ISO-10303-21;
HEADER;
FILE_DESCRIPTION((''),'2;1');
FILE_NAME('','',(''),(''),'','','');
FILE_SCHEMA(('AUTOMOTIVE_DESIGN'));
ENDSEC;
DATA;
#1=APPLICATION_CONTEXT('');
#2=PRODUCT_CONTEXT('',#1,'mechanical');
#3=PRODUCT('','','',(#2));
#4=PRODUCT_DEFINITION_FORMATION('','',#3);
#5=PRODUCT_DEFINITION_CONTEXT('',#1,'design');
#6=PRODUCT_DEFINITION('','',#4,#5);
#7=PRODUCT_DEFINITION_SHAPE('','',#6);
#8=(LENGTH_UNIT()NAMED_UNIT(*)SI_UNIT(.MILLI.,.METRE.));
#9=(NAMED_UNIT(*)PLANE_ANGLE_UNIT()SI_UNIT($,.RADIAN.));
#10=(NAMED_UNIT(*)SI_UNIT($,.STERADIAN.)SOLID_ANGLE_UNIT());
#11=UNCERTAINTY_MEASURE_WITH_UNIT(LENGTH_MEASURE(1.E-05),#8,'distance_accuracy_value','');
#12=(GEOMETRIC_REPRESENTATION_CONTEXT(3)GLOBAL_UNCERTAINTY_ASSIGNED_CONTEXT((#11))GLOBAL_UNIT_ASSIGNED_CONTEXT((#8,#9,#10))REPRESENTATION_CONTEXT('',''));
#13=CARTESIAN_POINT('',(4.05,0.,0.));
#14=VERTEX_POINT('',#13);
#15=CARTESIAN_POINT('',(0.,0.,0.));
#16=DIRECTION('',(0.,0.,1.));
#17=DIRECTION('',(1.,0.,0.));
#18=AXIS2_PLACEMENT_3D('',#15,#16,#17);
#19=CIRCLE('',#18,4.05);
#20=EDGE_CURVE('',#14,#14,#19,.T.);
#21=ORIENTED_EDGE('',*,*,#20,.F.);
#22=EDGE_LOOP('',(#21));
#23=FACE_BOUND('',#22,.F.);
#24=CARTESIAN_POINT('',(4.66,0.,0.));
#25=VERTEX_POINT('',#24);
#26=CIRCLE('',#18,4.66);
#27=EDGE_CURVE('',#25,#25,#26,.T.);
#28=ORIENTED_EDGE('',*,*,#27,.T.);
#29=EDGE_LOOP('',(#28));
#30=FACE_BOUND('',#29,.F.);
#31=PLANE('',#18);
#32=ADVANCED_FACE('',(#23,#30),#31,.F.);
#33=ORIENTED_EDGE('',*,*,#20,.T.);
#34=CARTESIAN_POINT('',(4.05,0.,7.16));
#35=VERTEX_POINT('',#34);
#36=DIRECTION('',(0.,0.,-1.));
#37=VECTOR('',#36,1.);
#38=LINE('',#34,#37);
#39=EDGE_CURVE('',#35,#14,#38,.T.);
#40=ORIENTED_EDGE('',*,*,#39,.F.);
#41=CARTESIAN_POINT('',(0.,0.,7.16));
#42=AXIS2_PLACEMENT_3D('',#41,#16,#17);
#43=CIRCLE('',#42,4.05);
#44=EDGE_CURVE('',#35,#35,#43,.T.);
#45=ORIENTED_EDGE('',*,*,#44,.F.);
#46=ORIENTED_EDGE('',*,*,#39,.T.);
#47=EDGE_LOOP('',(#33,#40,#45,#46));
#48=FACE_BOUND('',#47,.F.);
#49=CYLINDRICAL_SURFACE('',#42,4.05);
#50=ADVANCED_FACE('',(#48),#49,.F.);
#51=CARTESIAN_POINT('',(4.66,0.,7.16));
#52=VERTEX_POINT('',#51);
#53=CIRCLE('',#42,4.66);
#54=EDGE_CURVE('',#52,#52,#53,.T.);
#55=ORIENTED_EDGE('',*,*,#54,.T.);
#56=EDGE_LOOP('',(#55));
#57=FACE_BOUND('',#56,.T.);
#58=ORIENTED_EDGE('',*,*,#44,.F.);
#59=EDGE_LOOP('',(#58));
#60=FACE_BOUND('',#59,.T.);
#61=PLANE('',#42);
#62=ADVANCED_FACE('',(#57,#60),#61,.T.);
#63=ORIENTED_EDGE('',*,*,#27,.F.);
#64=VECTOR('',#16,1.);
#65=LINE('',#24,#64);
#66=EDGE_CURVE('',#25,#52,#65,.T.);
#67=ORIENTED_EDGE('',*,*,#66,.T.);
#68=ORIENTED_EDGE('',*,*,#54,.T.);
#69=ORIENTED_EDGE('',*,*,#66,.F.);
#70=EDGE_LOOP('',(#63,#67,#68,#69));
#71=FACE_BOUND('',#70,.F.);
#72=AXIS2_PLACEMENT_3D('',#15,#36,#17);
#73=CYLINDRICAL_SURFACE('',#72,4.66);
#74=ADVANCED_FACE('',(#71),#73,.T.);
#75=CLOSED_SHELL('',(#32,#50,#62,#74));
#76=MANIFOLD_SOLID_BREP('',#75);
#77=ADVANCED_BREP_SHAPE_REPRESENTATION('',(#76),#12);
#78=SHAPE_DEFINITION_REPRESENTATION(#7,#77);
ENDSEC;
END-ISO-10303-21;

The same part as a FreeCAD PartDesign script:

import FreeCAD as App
import Part
import Sketcher
from FreeCAD import Vector

doc = App.newDocument("Part")
body = doc.addObject("PartDesign::Body", "Body")

# Sketch on XY plane
sketch1 = body.newObject("Sketcher::SketchObject", "Sketch")
sketch1.AttachmentSupport = (doc.getObject("XY_Plane"), [""])
sketch1.MapMode = "FlatFace"
sketch1.addGeometry(Part.Circle(Vector(0, 0, 0), Vector(0, 0, 1), 4.66), False)
sketch1.addConstraint([
    Sketcher.Constraint("Coincident", 0, 3, -1, 1),
    Sketcher.Constraint("Diameter", 0, 9.32),
])
pad1 = body.newObject("PartDesign::Pad", "Pad")
pad1.Profile = sketch1
pad1.Length = 7.16

# Sketch on XY plane
sketch2 = body.newObject("Sketcher::SketchObject", "Sketch001")
sketch2.AttachmentSupport = (doc.getObject("XY_Plane"), [""])
sketch2.MapMode = "FlatFace"
sketch2.AttachmentOffset = App.Placement(Vector(0, 0, 7.16), App.Rotation())
sketch2.addGeometry(Part.Circle(Vector(0, 0, 0), Vector(0, 0, 1), 4.05), False)
sketch2.addConstraint([
    Sketcher.Constraint("Coincident", 0, 3, -1, 1),
    Sketcher.Constraint("Diameter", 0, 8.1),
])
pocket1 = body.newObject("PartDesign::Pocket", "Pocket")
pocket1.Profile = sketch2
pocket1.Type = "ThroughAll"

doc.recompute()
